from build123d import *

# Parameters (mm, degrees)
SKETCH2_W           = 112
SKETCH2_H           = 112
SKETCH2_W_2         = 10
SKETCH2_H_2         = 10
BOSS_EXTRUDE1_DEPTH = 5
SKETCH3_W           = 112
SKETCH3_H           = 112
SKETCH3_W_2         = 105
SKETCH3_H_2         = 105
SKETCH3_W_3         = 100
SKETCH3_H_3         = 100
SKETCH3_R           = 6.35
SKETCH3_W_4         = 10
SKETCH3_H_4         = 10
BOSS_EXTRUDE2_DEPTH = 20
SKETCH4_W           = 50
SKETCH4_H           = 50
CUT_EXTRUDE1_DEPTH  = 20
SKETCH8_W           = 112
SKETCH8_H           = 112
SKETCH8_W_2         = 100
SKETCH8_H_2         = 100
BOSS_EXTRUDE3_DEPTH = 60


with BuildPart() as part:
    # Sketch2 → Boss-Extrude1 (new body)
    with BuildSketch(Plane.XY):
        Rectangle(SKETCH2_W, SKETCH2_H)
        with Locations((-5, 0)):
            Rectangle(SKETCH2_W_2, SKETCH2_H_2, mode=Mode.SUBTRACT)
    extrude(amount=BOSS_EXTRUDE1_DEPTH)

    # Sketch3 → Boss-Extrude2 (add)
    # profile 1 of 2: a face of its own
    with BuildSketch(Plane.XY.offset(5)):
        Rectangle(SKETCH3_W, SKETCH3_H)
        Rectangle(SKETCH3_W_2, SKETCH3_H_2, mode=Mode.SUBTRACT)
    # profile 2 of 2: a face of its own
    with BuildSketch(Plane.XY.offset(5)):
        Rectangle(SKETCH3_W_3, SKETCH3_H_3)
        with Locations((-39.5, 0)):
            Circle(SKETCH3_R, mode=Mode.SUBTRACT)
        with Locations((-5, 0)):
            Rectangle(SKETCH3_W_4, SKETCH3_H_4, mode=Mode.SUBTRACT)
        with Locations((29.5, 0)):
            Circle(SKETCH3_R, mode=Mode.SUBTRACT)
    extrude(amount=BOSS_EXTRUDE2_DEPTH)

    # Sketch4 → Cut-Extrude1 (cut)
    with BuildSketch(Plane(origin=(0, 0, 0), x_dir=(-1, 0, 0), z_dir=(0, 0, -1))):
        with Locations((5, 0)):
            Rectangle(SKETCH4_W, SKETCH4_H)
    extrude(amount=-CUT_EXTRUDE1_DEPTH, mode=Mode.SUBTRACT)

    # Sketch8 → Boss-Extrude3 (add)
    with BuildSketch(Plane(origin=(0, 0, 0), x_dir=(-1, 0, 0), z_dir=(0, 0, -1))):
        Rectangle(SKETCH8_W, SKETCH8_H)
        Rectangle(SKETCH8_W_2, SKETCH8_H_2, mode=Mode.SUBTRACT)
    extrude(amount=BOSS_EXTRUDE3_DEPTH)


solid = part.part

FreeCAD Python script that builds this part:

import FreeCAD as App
import Part
import Sketcher
Q = App.Units.Quantity

doc = App.newDocument("Part")
params = doc.addObject("Spreadsheet::Sheet", "Params")
for row, (alias, value) in enumerate([
    ("sketch1_width", "112 mm"),
    ("sketch1_width2", "10 mm"),
    ("pad1_length", "5 mm"),
    ("sketch2_diameter", "12.7 mm"),
    ("sketch2_width", "112 mm"),
    ("sketch2_width2", "105 mm"),
    ("sketch2_width3", "100 mm"),
    ("sketch2_width4", "10 mm"),
    ("pad2_length", "20 mm"),
    ("sketch3_width", "50 mm"),
    ("pocket1_length", "20 mm"),
    ("sketch4_width", "112 mm"),
    ("sketch4_width2", "100 mm"),
    ("pad3_length", "60 mm"),
], start=1):
    params.set(f"A{row}", alias)
    params.set(f"B{row}", "=" + value)
    params.setAlias(f"B{row}", alias)

body = doc.addObject("PartDesign::Body", "Body")

# Sketch on XY plane
sketch1 = body.newObject("Sketcher::SketchObject", "Sketch")
sketch1.AttachmentSupport = (doc.getObject("XY_Plane"), [""])
sketch1.MapMode = "FlatFace"
sketch1.addGeometry(Part.LineSegment(App.Vector(-56, 56, 0), App.Vector(-56, -56, 0)), False)
sketch1.addGeometry(Part.LineSegment(App.Vector(-56, -56, 0), App.Vector(56, -56, 0)), False)
sketch1.addGeometry(Part.LineSegment(App.Vector(56, -56, 0), App.Vector(56, 56, 0)), False)
sketch1.addGeometry(Part.LineSegment(App.Vector(56, 56, 0), App.Vector(-56, 56, 0)), False)
sketch1.addGeometry(Part.LineSegment(App.Vector(0, -5, 0), App.Vector(-10, -5, 0)), False)
sketch1.addGeometry(Part.LineSegment(App.Vector(-10, -5, 0), App.Vector(-10, 5, 0)), False)
sketch1.addGeometry(Part.LineSegment(App.Vector(-10, 5, 0), App.Vector(0, 5, 0)), False)
sketch1.addGeometry(Part.LineSegment(App.Vector(0, 5, 0), App.Vector(0, -5, 0)), False)
sketch1.addConstraint(Sketcher.Constraint("Coincident", 0, 2, 1, 1))
sketch1.addConstraint(Sketcher.Constraint("Coincident", 1, 2, 2, 1))
sketch1.addConstraint(Sketcher.Constraint("Coincident", 2, 2, 3, 1))
sketch1.addConstraint(Sketcher.Constraint("Coincident", 3, 2, 0, 1))
sketch1.addConstraint(Sketcher.Constraint("Coincident", 4, 2, 5, 1))
sketch1.addConstraint(Sketcher.Constraint("Coincident", 5, 2, 6, 1))
sketch1.addConstraint(Sketcher.Constraint("Coincident", 6, 2, 7, 1))
sketch1.addConstraint(Sketcher.Constraint("Coincident", 7, 2, 4, 1))
sketch1.addConstraint(Sketcher.Constraint("Vertical", 0))
sketch1.addConstraint(Sketcher.Constraint("Horizontal", 1))
sketch1.addConstraint(Sketcher.Constraint("Vertical", 2))
sketch1.addConstraint(Sketcher.Constraint("Horizontal", 3))
sketch1.addConstraint(Sketcher.Constraint("Horizontal", 4))
sketch1.addConstraint(Sketcher.Constraint("Vertical", 5))
sketch1.addConstraint(Sketcher.Constraint("Horizontal", 6))
sketch1.addConstraint(Sketcher.Constraint("Vertical", 7))
sketch1.addConstraint(Sketcher.Constraint("Symmetric", 0, 2, 2, 2, -1, 1))
sketch1.addConstraint(Sketcher.Constraint("Symmetric", 6, 2, 7, 2, -1, 1))
sketch1.addConstraint(Sketcher.Constraint("Equal", 3, 0))
sketch1.addConstraint(Sketcher.Constraint("Equal", 6, 5))
sketch1.addConstraint(Sketcher.Constraint("DistanceX", 1, 1, 1, 2, Q("112 mm")))
sketch1.addConstraint(Sketcher.Constraint("DistanceX", 4, 2, 4, 1, Q("10 mm")))
sketch1.setExpression("Constraints[20]", "Params.sketch1_width")
sketch1.setExpression("Constraints[21]", "Params.sketch1_width2")
pad1 = body.newObject("PartDesign::Pad", "Pad")
pad1.Profile = sketch1
pad1.setExpression("Length", "Params.pad1_length")

# Sketch on XY plane
sketch2 = body.newObject("Sketcher::SketchObject", "Sketch001")
sketch2.AttachmentSupport = (doc.getObject("XY_Plane"), [""])
sketch2.MapMode = "FlatFace"
sketch2.AttachmentOffset = App.Placement(App.Vector(0, 0, 5), App.Rotation())
sketch2.addGeometry(Part.LineSegment(App.Vector(-56, 56, 0), App.Vector(-56, -56, 0)), False)
sketch2.addGeometry(Part.LineSegment(App.Vector(-56, -56, 0), App.Vector(56, -56, 0)), False)
sketch2.addGeometry(Part.LineSegment(App.Vector(56, -56, 0), App.Vector(56, 56, 0)), False)
sketch2.addGeometry(Part.LineSegment(App.Vector(56, 56, 0), App.Vector(-56, 56, 0)), False)
sketch2.addGeometry(Part.LineSegment(App.Vector(52.5, -52.5, 0), App.Vector(-52.5, -52.5, 0)), False)
sketch2.addGeometry(Part.LineSegment(App.Vector(-52.5, -52.5, 0), App.Vector(-52.5, 52.5, 0)), False)
sketch2.addGeometry(Part.LineSegment(App.Vector(-52.5, 52.5, 0), App.Vector(52.5, 52.5, 0)), False)
sketch2.addGeometry(Part.LineSegment(App.Vector(52.5, 52.5, 0), App.Vector(52.5, -52.5, 0)), False)
sketch2.addGeometry(Part.LineSegment(App.Vector(-50, 50, 0), App.Vector(-50, -50, 0)), False)
sketch2.addGeometry(Part.LineSegment(App.Vector(-50, -50, 0), App.Vector(50, -50, 0)), False)
sketch2.addGeometry(Part.LineSegment(App.Vector(50, -50, 0), App.Vector(50, 50, 0)), False)
sketch2.addGeometry(Part.LineSegment(App.Vector(50, 50, 0), App.Vector(-50, 50, 0)), False)
sketch2.addGeometry(Part.Circle(App.Vector(-39.5, 0, 0), App.Vector(0, 0, 1), 6.35), False)
sketch2.addGeometry(Part.LineSegment(App.Vector(0, -5, 0), App.Vector(-10, -5, 0)), False)
sketch2.addGeometry(Part.LineSegment(App.Vector(-10, -5, 0), App.Vector(-10, 5, 0)), False)
sketch2.addGeometry(Part.LineSegment(App.Vector(-10, 5, 0), App.Vector(0, 5, 0)), False)
sketch2.addGeometry(Part.LineSegment(App.Vector(0, 5, 0), App.Vector(0, -5, 0)), False)
sketch2.addGeometry(Part.Circle(App.Vector(29.5, 0, 0), App.Vector(0, 0, 1), 6.35), False)
sketch2.addConstraint(Sketcher.Constraint("Coincident", 0, 2, 1, 1))
sketch2.addConstraint(Sketcher.Constraint("Coincident", 1, 2, 2, 1))
sketch2.addConstraint(Sketcher.Constraint("Coincident", 2, 2, 3, 1))
sketch2.addConstraint(Sketcher.Constraint("Coincident", 3, 2, 0, 1))
sketch2.addConstraint(Sketcher.Constraint("Coincident", 4, 2, 5, 1))
sketch2.addConstraint(Sketcher.Constraint("Coincident", 5, 2, 6, 1))
sketch2.addConstraint(Sketcher.Constraint("Coincident", 6, 2, 7, 1))
sketch2.addConstraint(Sketcher.Constraint("Coincident", 7, 2, 4, 1))
sketch2.addConstraint(Sketcher.Constraint("Coincident", 8, 2, 9, 1))
sketch2.addConstraint(Sketcher.Constraint("Coincident", 9, 2, 10, 1))
sketch2.addConstraint(Sketcher.Constraint("Coincident", 10, 2, 11, 1))
sketch2.addConstraint(Sketcher.Constraint("Coincident", 11, 2, 8, 1))
sketch2.addConstraint(Sketcher.Constraint("Coincident", 13, 2, 14, 1))
sketch2.addConstraint(Sketcher.Constraint("Coincident", 14, 2, 15, 1))
sketch2.addConstraint(Sketcher.Constraint("Coincident", 15, 2, 16, 1))
sketch2.addConstraint(Sketcher.Constraint("Coincident", 16, 2, 13, 1))
sketch2.addConstraint(Sketcher.Constraint("Vertical", 0))
sketch2.addConstraint(Sketcher.Constraint("Horizontal", 1))
sketch2.addConstraint(Sketcher.Constraint("Vertical", 2))
sketch2.addConstraint(Sketcher.Constraint("Horizontal", 3))
sketch2.addConstraint(Sketcher.Constraint("Horizontal", 4))
sketch2.addConstraint(Sketcher.Constraint("Vertical", 5))
sketch2.addConstraint(Sketcher.Constraint("Horizontal", 6))
sketch2.addConstraint(Sketcher.Constraint("Vertical", 7))
sketch2.addConstraint(Sketcher.Constraint("Vertical", 8))
sketch2.addConstraint(Sketcher.Constraint("Horizontal", 9))
sketch2.addConstraint(Sketcher.Constraint("Vertical", 10))
sketch2.addConstraint(Sketcher.Constraint("Horizontal", 11))
sketch2.addConstraint(Sketcher.Constraint("Horizontal", 13))
sketch2.addConstraint(Sketcher.Constraint("Vertical", 14))
sketch2.addConstraint(Sketcher.Constraint("Horizontal", 15))
sketch2.addConstraint(Sketcher.Constraint("Vertical", 16))
sketch2.addConstraint(Sketcher.Constraint("Equal", 12, 17))
sketch2.addConstraint(Sketcher.Constraint("Symmetric", 0, 2, 2, 2, -1, 1))
sketch2.addConstraint(Sketcher.Constraint("Symmetric", 4, 2, 6, 2, -1, 1))
sketch2.addConstraint(Sketcher.Constraint("Symmetric", 8, 2, 10, 2, -1, 1))
sketch2.addConstraint(Sketcher.Constraint("Symmetric", 15, 2, 16, 2, -1, 1))
sketch2.addConstraint(Sketcher.Constraint("PointOnObject", 12, 3, -1))
sketch2.addConstraint(Sketcher.Constraint("PointOnObject", 17, 3, -1))
sketch2.addConstraint(Sketcher.Constraint("Equal", 3, 0))
sketch2.addConstraint(Sketcher.Constraint("Equal", 6, 5))
sketch2.addConstraint(Sketcher.Constraint("Equal", 11, 8))
sketch2.addConstraint(Sketcher.Constraint("Equal", 15, 14))
sketch2.addConstraint(Sketcher.Constraint("Diameter", 12, Q("12.7 mm")))
sketch2.addConstraint(Sketcher.Constraint("DistanceX", 1, 1, 1, 2, Q("112 mm")))
sketch2.addConstraint(Sketcher.Constraint("DistanceX", 4, 2, 4, 1, Q("105 mm")))
sketch2.addConstraint(Sketcher.Constraint("DistanceX", 9, 1, 9, 2, Q("100 mm")))
sketch2.addConstraint(Sketcher.Constraint("DistanceX", 13, 2, 13, 1, Q("10 mm")))
sketch2.addConstraint(Sketcher.Constraint("DistanceX", 12, 3, 17, 3, Q("69 mm")))
sketch2.addConstraint(Sketcher.Constraint("DistanceX", 4, 2, 12, 3, Q("13 mm")))
sketch2.setExpression("Constraints[43]", "Params.sketch2_diameter")
sketch2.setExpression("Constraints[44]", "Params.sketch2_width")
sketch2.setExpression("Constraints[45]", "Params.sketch2_width2")
sketch2.setExpression("Constraints[46]", "Params.sketch2_width3")
sketch2.setExpression("Constraints[47]", "Params.sketch2_width4")
pad2 = body.newObject("PartDesign::Pad", "Pad001")
pad2.Profile = sketch2
pad2.setExpression("Length", "Params.pad2_length")

# Sketch on XY plane
sketch3 = body.newObject("Sketcher::SketchObject", "Sketch002")
sketch3.AttachmentSupport = (doc.getObject("XY_Plane"), [""])
sketch3.MapMode = "FlatFace"
sketch3.addGeometry(Part.LineSegment(App.Vector(20, 25, 0), App.Vector(20, -25, 0)), False)
sketch3.addGeometry(Part.LineSegment(App.Vector(20, -25, 0), App.Vector(-30, -25, 0)), False)
sketch3.addGeometry(Part.LineSegment(App.Vector(-30, -25, 0), App.Vector(-30, 25, 0)), False)
sketch3.addGeometry(Part.LineSegment(App.Vector(-30, 25, 0), App.Vector(20, 25, 0)), False)
sketch3.addConstraint(Sketcher.Constraint("Coincident", 0, 2, 1, 1))
sketch3.addConstraint(Sketcher.Constraint("Coincident", 1, 2, 2, 1))
sketch3.addConstraint(Sketcher.Constraint("Coincident", 2, 2, 3, 1))
sketch3.addConstraint(Sketcher.Constraint("Coincident", 3, 2, 0, 1))
sketch3.addConstraint(Sketcher.Constraint("Vertical", 0))
sketch3.addConstraint(Sketcher.Constraint("Horizontal", 1))
sketch3.addConstraint(Sketcher.Constraint("Vertical", 2))
sketch3.addConstraint(Sketcher.Constraint("Horizontal", 3))
sketch3.addConstraint(Sketcher.Constraint("Equal", 3, 0))
sketch3.addConstraint(Sketcher.Constraint("DistanceX", 1, 2, 1, 1, Q("50 mm")))
sketch3.addConstraint(Sketcher.Constraint("DistanceX", -1, 1, 0, 2, Q("20 mm")))
sketch3.addConstraint(Sketcher.Constraint("DistanceY", 0, 2, -1, 1, Q("25 mm")))
sketch3.setExpression("Constraints[9]", "Params.sketch3_width")
pocket1 = body.newObject("PartDesign::Pocket", "Pocket")
pocket1.Profile = sketch3
pocket1.setExpression("Length", "Params.pocket1_length")
pocket1.Reversed = True

# Sketch on XY plane
sketch4 = body.newObject("Sketcher::SketchObject", "Sketch003")
sketch4.AttachmentSupport = (doc.getObject("XY_Plane"), [""])
sketch4.MapMode = "FlatFace"
sketch4.addGeometry(Part.LineSegment(App.Vector(56, 56, 0), App.Vector(56, -56, 0)), False)
sketch4.addGeometry(Part.LineSegment(App.Vector(56, -56, 0), App.Vector(-56, -56, 0)), False)
sketch4.addGeometry(Part.LineSegment(App.Vector(-56, -56, 0), App.Vector(-56, 56, 0)), False)
sketch4.addGeometry(Part.LineSegment(App.Vector(-56, 56, 0), App.Vector(56, 56, 0)), False)
sketch4.addGeometry(Part.LineSegment(App.Vector(-50, -50, 0), App.Vector(50, -50, 0)), False)
sketch4.addGeometry(Part.LineSegment(App.Vector(50, -50, 0), App.Vector(50, 50, 0)), False)
sketch4.addGeometry(Part.LineSegment(App.Vector(50, 50, 0), App.Vector(-50, 50, 0)), False)
sketch4.addGeometry(Part.LineSegment(App.Vector(-50, 50, 0), App.Vector(-50, -50, 0)), False)
sketch4.addConstraint(Sketcher.Constraint("Coincident", 0, 2, 1, 1))
sketch4.addConstraint(Sketcher.Constraint("Coincident", 1, 2, 2, 1))
sketch4.addConstraint(Sketcher.Constraint("Coincident", 2, 2, 3, 1))
sketch4.addConstraint(Sketcher.Constraint("Coincident", 3, 2, 0, 1))
sketch4.addConstraint(Sketcher.Constraint("Coincident", 4, 2, 5, 1))
sketch4.addConstraint(Sketcher.Constraint("Coincident", 5, 2, 6, 1))
sketch4.addConstraint(Sketcher.Constraint("Coincident", 6, 2, 7, 1))
sketch4.addConstraint(Sketcher.Constraint("Coincident", 7, 2, 4, 1))
sketch4.addConstraint(Sketcher.Constraint("Vertical", 0))
sketch4.addConstraint(Sketcher.Constraint("Horizontal", 1))
sketch4.addConstraint(Sketcher.Constraint("Vertical", 2))
sketch4.addConstraint(Sketcher.Constraint("Horizontal", 3))
sketch4.addConstraint(Sketcher.Constraint("Horizontal", 4))
sketch4.addConstraint(Sketcher.Constraint("Vertical", 5))
sketch4.addConstraint(Sketcher.Constraint("Horizontal", 6))
sketch4.addConstraint(Sketcher.Constraint("Vertical", 7))
sketch4.addConstraint(Sketcher.Constraint("Symmetric", 0, 2, 2, 2, -1, 1))
sketch4.addConstraint(Sketcher.Constraint("Symmetric", 4, 2, 6, 2, -1, 1))
sketch4.addConstraint(Sketcher.Constraint("Equal", 3, 0))
sketch4.addConstraint(Sketcher.Constraint("Equal", 6, 5))
sketch4.addConstraint(Sketcher.Constraint("DistanceX", 1, 2, 1, 1, Q("112 mm")))
sketch4.addConstraint(Sketcher.Constraint("DistanceX", 4, 1, 4, 2, Q("100 mm")))
sketch4.setExpression("Constraints[20]", "Params.sketch4_width")
sketch4.setExpression("Constraints[21]", "Params.sketch4_width2")
pad3 = body.newObject("PartDesign::Pad", "Pad002")
pad3.Profile = sketch4
pad3.setExpression("Length", "Params.pad3_length")
pad3.Reversed = True

doc.recompute()
